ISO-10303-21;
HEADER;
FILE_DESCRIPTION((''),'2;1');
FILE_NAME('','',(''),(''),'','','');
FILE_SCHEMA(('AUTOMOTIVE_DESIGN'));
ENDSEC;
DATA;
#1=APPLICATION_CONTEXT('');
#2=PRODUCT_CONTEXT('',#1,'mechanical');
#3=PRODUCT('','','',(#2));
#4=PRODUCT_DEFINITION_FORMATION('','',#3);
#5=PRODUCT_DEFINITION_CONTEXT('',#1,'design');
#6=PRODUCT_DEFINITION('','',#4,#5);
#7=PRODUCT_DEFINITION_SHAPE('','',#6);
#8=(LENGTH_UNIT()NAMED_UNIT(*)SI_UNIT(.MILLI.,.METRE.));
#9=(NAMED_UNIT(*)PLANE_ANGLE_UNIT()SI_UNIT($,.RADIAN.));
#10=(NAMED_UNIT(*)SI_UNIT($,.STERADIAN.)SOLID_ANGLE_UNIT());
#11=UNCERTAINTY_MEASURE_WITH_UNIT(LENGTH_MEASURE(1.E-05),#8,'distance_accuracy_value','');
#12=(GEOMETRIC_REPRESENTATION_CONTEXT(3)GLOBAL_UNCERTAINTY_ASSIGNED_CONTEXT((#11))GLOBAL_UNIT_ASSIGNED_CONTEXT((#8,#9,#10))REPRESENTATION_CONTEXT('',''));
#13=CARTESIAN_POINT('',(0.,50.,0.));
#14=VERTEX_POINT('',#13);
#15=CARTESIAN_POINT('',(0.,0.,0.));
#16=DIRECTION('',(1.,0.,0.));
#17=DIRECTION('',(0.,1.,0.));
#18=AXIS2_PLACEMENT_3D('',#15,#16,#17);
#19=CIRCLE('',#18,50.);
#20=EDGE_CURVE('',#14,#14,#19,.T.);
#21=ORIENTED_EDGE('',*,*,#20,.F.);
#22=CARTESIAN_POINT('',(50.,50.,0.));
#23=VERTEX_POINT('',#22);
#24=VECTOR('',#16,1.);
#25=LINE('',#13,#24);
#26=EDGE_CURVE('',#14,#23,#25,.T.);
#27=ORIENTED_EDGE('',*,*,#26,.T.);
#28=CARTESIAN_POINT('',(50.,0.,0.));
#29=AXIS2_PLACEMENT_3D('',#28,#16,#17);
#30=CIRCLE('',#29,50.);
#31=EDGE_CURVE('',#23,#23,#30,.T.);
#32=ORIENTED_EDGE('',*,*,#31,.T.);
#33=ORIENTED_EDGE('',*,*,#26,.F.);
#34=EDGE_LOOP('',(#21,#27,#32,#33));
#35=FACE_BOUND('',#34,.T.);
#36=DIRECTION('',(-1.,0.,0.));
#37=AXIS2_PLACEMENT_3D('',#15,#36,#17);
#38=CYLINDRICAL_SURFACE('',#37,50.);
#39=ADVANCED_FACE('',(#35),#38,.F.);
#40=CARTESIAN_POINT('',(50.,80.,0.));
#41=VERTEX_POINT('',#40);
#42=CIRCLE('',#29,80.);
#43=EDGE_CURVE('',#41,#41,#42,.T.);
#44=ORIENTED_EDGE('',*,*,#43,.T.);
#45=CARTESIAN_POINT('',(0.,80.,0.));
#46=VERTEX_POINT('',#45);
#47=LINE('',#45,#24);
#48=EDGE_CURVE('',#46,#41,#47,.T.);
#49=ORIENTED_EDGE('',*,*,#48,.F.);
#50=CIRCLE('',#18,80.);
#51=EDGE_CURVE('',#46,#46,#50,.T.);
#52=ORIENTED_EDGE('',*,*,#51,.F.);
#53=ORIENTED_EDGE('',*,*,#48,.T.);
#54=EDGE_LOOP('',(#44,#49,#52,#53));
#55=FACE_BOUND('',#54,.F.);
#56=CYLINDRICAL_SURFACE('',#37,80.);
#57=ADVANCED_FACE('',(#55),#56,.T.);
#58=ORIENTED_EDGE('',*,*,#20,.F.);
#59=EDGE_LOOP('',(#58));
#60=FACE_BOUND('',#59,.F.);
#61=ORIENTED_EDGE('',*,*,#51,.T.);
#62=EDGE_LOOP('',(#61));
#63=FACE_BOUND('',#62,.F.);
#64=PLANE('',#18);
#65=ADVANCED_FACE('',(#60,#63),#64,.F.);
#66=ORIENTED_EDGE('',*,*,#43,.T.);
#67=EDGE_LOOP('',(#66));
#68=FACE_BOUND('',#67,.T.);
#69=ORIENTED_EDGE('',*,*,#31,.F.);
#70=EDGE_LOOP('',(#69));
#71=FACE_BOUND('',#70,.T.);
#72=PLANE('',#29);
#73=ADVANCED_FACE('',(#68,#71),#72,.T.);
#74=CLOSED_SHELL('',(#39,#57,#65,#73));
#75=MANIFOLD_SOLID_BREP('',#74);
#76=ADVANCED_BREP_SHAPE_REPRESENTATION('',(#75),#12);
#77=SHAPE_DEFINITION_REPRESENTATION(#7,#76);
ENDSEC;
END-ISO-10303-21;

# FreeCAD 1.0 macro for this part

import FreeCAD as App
import Part
import Sketcher
from FreeCAD import Vector
Q = App.Units.Quantity

doc = App.newDocument("Part")
params = doc.addObject("Spreadsheet::Sheet", "Params")
for row, (alias, value) in enumerate([
    ("sketch1_diameter", "160 mm"),
    ("sketch1_diameter2", "100 mm"),
    ("pad1_length", "50 mm"),
], start=1):
    params.set(f"A{row}", alias)
    params.set(f"B{row}", "=" + value)
    params.setAlias(f"B{row}", alias)

body = doc.addObject("PartDesign::Body", "Body")

# Sketch on YZ plane
sketch1 = body.newObject("Sketcher::SketchObject", "Sketch")
sketch1.AttachmentSupport = (doc.getObject("YZ_Plane"), [""])
sketch1.MapMode = "FlatFace"
sketch1.addGeometry(Part.Circle(Vector(0, 0, 0), Vector(0, 0, 1), 80), False)
sketch1.addGeometry(Part.Circle(Vector(0, 0, 0), Vector(0, 0, 1), 50), False)
sketch1.addConstraint(Sketcher.Constraint("Coincident", 0, 3, -1, 1))
sketch1.addConstraint(Sketcher.Constraint("Coincident", 1, 3, -1, 1))
sketch1.addConstraint(Sketcher.Constraint("Diameter", 0, Q("160 mm")))
sketch1.addConstraint(Sketcher.Constraint("Diameter", 1, Q("100 mm")))
sketch1.setExpression("Constraints[2]", "Params.sketch1_diameter")
sketch1.setExpression("Constraints[3]", "Params.sketch1_diameter2")
pad1 = body.newObject("PartDesign::Pad", "Pad")
pad1.Profile = sketch1
pad1.setExpression("Length", "Params.pad1_length")

doc.recompute()
